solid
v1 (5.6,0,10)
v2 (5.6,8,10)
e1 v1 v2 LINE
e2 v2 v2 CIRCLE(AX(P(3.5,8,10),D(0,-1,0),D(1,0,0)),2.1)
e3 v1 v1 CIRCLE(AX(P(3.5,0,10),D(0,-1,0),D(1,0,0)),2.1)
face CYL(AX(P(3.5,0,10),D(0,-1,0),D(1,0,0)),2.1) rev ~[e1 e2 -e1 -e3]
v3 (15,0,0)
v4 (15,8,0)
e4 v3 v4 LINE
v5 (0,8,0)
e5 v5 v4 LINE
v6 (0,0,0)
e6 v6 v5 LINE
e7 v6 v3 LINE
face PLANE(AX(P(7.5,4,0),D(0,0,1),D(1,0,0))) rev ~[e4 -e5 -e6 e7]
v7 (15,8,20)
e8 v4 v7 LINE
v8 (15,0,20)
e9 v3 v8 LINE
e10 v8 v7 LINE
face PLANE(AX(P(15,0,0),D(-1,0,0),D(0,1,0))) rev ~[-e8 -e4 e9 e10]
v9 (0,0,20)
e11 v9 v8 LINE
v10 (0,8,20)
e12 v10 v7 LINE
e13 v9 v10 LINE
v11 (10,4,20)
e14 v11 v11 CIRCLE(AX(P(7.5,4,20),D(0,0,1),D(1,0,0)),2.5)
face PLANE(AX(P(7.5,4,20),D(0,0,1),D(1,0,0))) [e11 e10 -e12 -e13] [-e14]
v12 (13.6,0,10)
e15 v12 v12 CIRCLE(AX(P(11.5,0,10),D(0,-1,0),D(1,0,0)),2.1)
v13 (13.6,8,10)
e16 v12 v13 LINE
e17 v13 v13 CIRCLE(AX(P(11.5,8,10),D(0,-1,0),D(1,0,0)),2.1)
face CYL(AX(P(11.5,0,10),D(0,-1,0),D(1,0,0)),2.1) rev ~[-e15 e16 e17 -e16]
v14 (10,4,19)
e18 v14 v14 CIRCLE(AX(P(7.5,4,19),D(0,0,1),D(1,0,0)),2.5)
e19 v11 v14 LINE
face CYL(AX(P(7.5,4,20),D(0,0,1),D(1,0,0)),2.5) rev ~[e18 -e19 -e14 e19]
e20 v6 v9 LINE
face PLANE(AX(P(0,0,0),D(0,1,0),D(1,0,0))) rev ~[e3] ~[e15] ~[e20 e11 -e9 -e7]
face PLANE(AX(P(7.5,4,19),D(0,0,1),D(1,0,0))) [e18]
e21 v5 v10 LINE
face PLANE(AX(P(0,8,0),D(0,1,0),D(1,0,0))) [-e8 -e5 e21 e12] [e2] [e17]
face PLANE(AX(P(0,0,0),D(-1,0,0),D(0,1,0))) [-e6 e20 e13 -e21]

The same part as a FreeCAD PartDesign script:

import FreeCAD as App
import Part
import Sketcher
Q = App.Units.Quantity


def add_polygon(sketch, points):
    """Adds a closed chain of lines whose ends are joined by coincident constraints."""
    first, n = sketch.GeometryCount, len(points)
    for a, b in zip(points, points[1:] + points[:1]):
        sketch.addGeometry(Part.LineSegment(App.Vector(*a, 0), App.Vector(*b, 0)), False)
    for i in range(n):
        sketch.addConstraint(Sketcher.Constraint("Coincident", first + i, 2, first + (i + 1) % n, 1))

doc = App.newDocument("Part")
body = doc.addObject("PartDesign::Body", "Body")

sketch1 = body.newObject("Sketcher::SketchObject", "Sketch")
sketch1.AttachmentSupport = (doc.getObject("XY_Plane"), [""])
sketch1.MapMode = "FlatFace"
add_polygon(sketch1, [(0, 8), (0, 0), (15, 0), (15, 8)])
sketch1.addConstraint([
    Sketcher.Constraint("Vertical", 0),
    Sketcher.Constraint("Horizontal", 1),
    Sketcher.Constraint("Vertical", 2),
    Sketcher.Constraint("Horizontal", 3),
    Sketcher.Constraint("Coincident", 0, 2, -1, 1),
    Sketcher.Constraint("DistanceX", 1, 1, 1, 2, Q("15 mm")),
    Sketcher.Constraint("DistanceY", 0, 2, 0, 1, Q("8 mm")),
])
pad1 = body.newObject("PartDesign::Pad", "Pad")
pad1.Profile = sketch1
pad1.Length = 20

sketch2 = body.newObject("Sketcher::SketchObject", "Sketch001")
sketch2.AttachmentSupport = (doc.getObject("XZ_Plane"), [""])
sketch2.MapMode = "FlatFace"
sketch2.addGeometry([
    Part.Circle(App.Vector(3.5, 10, 0), App.Vector(0, 0, 1), 2.1),
    Part.Circle(App.Vector(11.5, 10, 0), App.Vector(0, 0, 1), 2.1),
], False)
sketch2.addConstraint([
    Sketcher.Constraint("Equal", 0, 1),
    Sketcher.Constraint("Horizontal", 0, 3, 1, 3),
    Sketcher.Constraint("Diameter", 0, Q("4.2 mm")),
    Sketcher.Constraint("DistanceY", -1, 1, 0, 3, Q("10 mm")),
    Sketcher.Constraint("DistanceX", 0, 3, 1, 3, Q("8 mm")),
    Sketcher.Constraint("DistanceX", -1, 1, 0, 3, Q("3.5 mm")),
])
pocket1 = body.newObject("PartDesign::Pocket", "Pocket")
pocket1.Profile = sketch2
pocket1.Length = 25

sketch3 = body.newObject("Sketcher::SketchObject", "Sketch002")
sketch3.AttachmentSupport = (doc.getObject("XY_Plane"), [""])
sketch3.MapMode = "FlatFace"
sketch3.AttachmentOffset = App.Placement(App.Vector(0, 0, 20), App.Rotation())
sketch3.addGeometry(Part.Circle(App.Vector(7.5, 4, 0), App.Vector(0, 0, 1), 2.5), False)
sketch3.addConstraint([
    Sketcher.Constraint("Diameter", 0, Q("5 mm")),
    Sketcher.Constraint("DistanceY", -1, 1, 0, 3, Q("4 mm")),
    Sketcher.Constraint("DistanceX", -1, 1, 0, 3, Q("7.5 mm")),
])
pocket2 = body.newObject("PartDesign::Pocket", "Pocket001")
pocket2.Profile = sketch3
pocket2.Length = 1

doc.recompute()
